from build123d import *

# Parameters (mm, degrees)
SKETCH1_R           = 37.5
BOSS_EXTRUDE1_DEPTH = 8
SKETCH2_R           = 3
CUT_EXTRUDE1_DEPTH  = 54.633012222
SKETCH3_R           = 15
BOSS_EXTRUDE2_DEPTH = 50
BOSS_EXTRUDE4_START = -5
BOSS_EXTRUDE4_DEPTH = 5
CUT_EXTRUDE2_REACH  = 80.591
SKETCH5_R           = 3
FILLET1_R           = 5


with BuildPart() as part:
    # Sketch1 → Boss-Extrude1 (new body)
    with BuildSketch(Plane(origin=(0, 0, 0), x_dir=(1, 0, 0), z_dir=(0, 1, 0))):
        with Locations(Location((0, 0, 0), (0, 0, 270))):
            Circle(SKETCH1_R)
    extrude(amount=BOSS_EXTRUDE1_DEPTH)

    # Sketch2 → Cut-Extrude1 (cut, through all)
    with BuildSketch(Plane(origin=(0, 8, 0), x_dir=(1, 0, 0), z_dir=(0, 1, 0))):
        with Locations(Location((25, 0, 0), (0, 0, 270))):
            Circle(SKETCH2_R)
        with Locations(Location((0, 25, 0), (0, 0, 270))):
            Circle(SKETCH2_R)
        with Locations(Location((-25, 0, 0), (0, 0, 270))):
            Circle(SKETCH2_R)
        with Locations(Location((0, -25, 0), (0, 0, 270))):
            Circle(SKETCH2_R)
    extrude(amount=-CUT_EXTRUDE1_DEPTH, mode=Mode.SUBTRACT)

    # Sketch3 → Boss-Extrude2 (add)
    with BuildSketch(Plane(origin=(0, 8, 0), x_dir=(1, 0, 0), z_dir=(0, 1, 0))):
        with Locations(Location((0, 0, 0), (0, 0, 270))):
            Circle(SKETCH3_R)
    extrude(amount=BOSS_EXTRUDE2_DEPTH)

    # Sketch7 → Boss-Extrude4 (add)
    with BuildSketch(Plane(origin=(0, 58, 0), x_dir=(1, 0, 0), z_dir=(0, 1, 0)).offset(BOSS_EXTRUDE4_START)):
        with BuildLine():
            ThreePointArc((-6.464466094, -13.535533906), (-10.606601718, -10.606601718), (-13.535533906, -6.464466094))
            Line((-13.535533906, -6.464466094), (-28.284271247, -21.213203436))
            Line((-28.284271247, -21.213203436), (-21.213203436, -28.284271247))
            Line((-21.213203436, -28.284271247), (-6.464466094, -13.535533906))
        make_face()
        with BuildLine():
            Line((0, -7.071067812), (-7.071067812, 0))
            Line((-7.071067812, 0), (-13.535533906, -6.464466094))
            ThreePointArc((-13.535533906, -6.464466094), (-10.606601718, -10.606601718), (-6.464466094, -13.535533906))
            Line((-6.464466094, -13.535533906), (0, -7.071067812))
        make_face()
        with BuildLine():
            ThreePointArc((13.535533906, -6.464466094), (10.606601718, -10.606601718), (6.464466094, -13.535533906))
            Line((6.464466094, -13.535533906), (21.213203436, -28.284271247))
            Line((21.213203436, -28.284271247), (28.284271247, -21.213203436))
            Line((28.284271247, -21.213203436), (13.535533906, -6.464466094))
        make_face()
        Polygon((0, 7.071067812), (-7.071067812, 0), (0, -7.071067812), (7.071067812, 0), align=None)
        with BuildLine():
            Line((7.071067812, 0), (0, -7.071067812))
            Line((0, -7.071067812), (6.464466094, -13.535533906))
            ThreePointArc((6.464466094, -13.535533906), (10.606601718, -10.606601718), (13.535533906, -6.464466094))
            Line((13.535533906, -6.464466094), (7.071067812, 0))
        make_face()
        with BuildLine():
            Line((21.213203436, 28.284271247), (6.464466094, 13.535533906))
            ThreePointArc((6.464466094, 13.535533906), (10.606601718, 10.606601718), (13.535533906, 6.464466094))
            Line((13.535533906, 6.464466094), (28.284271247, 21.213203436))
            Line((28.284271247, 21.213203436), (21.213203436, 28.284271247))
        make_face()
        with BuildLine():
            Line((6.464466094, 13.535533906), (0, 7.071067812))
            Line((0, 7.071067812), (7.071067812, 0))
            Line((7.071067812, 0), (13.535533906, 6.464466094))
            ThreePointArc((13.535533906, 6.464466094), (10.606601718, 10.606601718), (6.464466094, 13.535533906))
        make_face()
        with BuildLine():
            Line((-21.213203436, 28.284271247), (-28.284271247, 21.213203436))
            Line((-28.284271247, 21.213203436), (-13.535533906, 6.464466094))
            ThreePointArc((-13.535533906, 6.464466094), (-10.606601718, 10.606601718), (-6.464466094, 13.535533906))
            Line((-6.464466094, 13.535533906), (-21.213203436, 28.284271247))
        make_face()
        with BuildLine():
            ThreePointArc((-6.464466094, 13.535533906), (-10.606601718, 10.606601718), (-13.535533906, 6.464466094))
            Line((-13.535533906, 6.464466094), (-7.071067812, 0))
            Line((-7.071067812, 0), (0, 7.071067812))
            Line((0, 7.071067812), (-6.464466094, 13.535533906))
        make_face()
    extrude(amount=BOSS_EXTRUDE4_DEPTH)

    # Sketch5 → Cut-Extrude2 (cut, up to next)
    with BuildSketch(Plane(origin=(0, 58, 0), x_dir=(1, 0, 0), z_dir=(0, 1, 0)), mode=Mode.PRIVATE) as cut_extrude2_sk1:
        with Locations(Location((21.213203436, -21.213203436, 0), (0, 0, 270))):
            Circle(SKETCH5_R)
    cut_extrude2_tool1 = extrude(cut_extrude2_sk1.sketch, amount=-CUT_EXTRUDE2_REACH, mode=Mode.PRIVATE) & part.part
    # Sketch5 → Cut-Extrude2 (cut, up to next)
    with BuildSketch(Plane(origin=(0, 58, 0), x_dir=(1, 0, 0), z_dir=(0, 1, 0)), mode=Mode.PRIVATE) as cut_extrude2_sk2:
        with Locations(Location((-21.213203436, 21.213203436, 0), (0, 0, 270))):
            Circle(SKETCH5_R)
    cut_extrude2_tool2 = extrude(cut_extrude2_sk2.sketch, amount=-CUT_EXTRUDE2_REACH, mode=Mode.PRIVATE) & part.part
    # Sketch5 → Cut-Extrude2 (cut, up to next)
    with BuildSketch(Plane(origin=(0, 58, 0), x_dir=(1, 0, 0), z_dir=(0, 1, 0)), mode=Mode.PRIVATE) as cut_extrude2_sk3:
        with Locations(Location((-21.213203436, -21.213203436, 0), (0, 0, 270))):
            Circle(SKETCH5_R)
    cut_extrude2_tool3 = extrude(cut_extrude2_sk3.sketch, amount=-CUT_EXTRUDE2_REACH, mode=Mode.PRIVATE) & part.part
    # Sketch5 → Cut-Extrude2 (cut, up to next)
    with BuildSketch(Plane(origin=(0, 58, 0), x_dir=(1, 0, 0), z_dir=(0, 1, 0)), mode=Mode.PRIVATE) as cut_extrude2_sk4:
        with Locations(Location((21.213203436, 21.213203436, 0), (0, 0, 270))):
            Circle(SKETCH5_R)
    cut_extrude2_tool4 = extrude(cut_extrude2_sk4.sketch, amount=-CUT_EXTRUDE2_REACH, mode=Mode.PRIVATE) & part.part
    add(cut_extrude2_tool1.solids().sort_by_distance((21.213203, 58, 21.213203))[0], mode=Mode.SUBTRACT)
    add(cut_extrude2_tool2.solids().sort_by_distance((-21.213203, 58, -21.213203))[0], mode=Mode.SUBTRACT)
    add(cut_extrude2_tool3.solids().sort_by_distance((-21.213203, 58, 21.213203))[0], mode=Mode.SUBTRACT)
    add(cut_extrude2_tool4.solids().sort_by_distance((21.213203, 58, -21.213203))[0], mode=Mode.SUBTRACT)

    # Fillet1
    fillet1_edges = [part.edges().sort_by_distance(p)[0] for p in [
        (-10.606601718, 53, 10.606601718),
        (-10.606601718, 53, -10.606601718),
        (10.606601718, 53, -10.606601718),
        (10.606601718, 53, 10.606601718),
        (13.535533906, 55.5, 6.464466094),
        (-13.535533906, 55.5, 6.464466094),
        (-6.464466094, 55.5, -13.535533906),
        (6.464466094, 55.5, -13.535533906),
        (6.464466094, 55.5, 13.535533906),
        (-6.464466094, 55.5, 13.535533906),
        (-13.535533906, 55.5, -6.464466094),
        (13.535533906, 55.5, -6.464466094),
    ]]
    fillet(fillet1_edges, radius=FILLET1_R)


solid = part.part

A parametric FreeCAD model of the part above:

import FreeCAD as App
import Part
import Sketcher
from FreeCAD import Vector


def edges_at(feature, points):
    """Names of the edges that pass closest to the given points."""
    edges = feature.Shape.Edges
    near = lambda p: min(range(len(edges)), key=lambda i: edges[i].distToShape(Part.Vertex(*p))[0])
    return sorted({f"Edge{near(p) + 1}" for p in points})

doc = App.newDocument("Part")
params = doc.addObject("Spreadsheet::Sheet", "Params")
for row, (alias, value) in enumerate([
    ("sketch1_diameter", "75 mm"),
    ("pad1_length", "8 mm"),
    ("sketch2_diameter", "6 mm"),
    ("sketch3_diameter", "30 mm"),
    ("pad2_length", "50 mm"),
    ("sketch4_length", "10 mm"),
    ("pad3_length", "5 mm"),
    ("sketch5_diameter", "6 mm"),
    ("sketch6_diameter", "6 mm"),
    ("sketch7_diameter", "6 mm"),
    ("sketch8_diameter", "6 mm"),
    ("fillet_radius", "5 mm"),
], start=1):
    params.set(f"A{row}", alias)
    params.set(f"B{row}", "=" + value)
    params.setAlias(f"B{row}", alias)

body = doc.addObject("PartDesign::Body", "Body")

sketch1 = body.newObject("Sketcher::SketchObject", "Sketch")
sketch1.AttachmentSupport = (doc.getObject("XZ_Plane"), [""])
sketch1.MapMode = "FlatFace"
sketch1.addGeometry(Part.Circle(Vector(0, 0, 0), Vector(0, 0, 1), 38), False)
sketch1.addConstraint([
    Sketcher.Constraint("Coincident", 0, 3, -1, 1),
    Sketcher.Constraint("Diameter", 0, 75.0),
])
sketch1.setExpression("Constraints[1]", "Params.sketch1_diameter")
pad1 = body.newObject("PartDesign::Pad", "Pad")
pad1.Profile = sketch1
pad1.setExpression("Length", "Params.pad1_length")
pad1.Reversed = True

sketch2 = body.newObject("Sketcher::SketchObject", "Sketch001")
sketch2.AttachmentSupport = (doc.getObject("XZ_Plane"), [""])
sketch2.MapMode = "FlatFace"
sketch2.AttachmentOffset = App.Placement(Vector(0, 0, -8), App.Rotation())
sketch2.addGeometry([
    Part.Circle(Vector(25, 0, 0), Vector(0, 0, 1), 3),
    Part.Circle(Vector(0, -25, 0), Vector(0, 0, 1), 3),
    Part.Circle(Vector(-25, 0, 0), Vector(0, 0, 1), 3),
    Part.Circle(Vector(0, 25, 0), Vector(0, 0, 1), 3),
], False)
sketch2.addConstraint([
    Sketcher.Constraint("Equal", 0, 1),
    Sketcher.Constraint("Equal", 1, 2),
    Sketcher.Constraint("Equal", 2, 3),
    Sketcher.Constraint("Symmetric", 0, 3, 2, 3, -1, 1),
    Sketcher.Constraint("Symmetric", 1, 3, 3, 3, -1, 1),
    Sketcher.Constraint("PointOnObject", 0, 3, -1),
    Sketcher.Constraint("PointOnObject", 1, 3, -2),
    Sketcher.Constraint("Diameter", 0, 6.0),
    Sketcher.Constraint("DistanceX", -1, 1, 0, 3, 25.0),
    Sketcher.Constraint("DistanceY", 1, 3, -1, 1, 25.0),
])
sketch2.setExpression("Constraints[7]", "Params.sketch2_diameter")
pocket1 = body.newObject("PartDesign::Pocket", "Pocket")
pocket1.Profile = sketch2
pocket1.Type = "ThroughAll"
pocket1.Reversed = True

sketch3 = body.newObject("Sketcher::SketchObject", "Sketch002")
sketch3.AttachmentSupport = (doc.getObject("XZ_Plane"), [""])
sketch3.MapMode = "FlatFace"
sketch3.AttachmentOffset = App.Placement(Vector(0, 0, -8), App.Rotation())
sketch3.addGeometry(Part.Circle(Vector(0, 0, 0), Vector(0, 0, 1), 15), False)
sketch3.addConstraint([
    Sketcher.Constraint("Coincident", 0, 3, -1, 1),
    Sketcher.Constraint("Diameter", 0, 30.0),
])
sketch3.setExpression("Constraints[1]", "Params.sketch3_diameter")
pad2 = body.newObject("PartDesign::Pad", "Pad001")
pad2.Profile = sketch3
pad2.setExpression("Length", "Params.pad2_length")
pad2.Reversed = True

sketch4 = body.newObject("Sketcher::SketchObject", "Sketch003")
sketch4.AttachmentSupport = (doc.getObject("XZ_Plane"), [""])
sketch4.MapMode = "FlatFace"
sketch4.AttachmentOffset = App.Placement(Vector(0, 0, -53), App.Rotation())
sketch4.addGeometry([
    Part.LineSegment(Vector(-14, 6, 0), Vector(-28, 21, 0)),
    Part.LineSegment(Vector(-28, 21, 0), Vector(-21, 28, 0)),
    Part.LineSegment(Vector(-21, 28, 0), Vector(-6, 14, 0)),
    Part.LineSegment(Vector(-6, 14, 0), Vector(0, 7, 0)),
    Part.LineSegment(Vector(0, 7, 0), Vector(6, 14, 0)),
    Part.LineSegment(Vector(6, 14, 0), Vector(21, 28, 0)),
    Part.LineSegment(Vector(21, 28, 0), Vector(28, 21, 0)),
    Part.LineSegment(Vector(28, 21, 0), Vector(14, 6, 0)),
    Part.LineSegment(Vector(14, 6, 0), Vector(7, 0, 0)),
    Part.LineSegment(Vector(7, 0, 0), Vector(14, -6, 0)),
    Part.LineSegment(Vector(14, -6, 0), Vector(28, -21, 0)),
    Part.LineSegment(Vector(28, -21, 0), Vector(21, -28, 0)),
    Part.LineSegment(Vector(21, -28, 0), Vector(6, -14, 0)),
    Part.LineSegment(Vector(6, -14, 0), Vector(0, -7, 0)),
    Part.LineSegment(Vector(0, -7, 0), Vector(-6, -14, 0)),
    Part.LineSegment(Vector(-6, -14, 0), Vector(-21, -28, 0)),
    Part.LineSegment(Vector(-21, -28, 0), Vector(-28, -21, 0)),
    Part.LineSegment(Vector(-28, -21, 0), Vector(-14, -6, 0)),
    Part.LineSegment(Vector(-14, -6, 0), Vector(-7, 0, 0)),
    Part.LineSegment(Vector(-7, 0, 0), Vector(-14, 6, 0)),
], False)
sketch4.addConstraint([
    Sketcher.Constraint("Coincident", 0, 2, 1, 1),
    Sketcher.Constraint("Coincident", 1, 2, 2, 1),
    Sketcher.Constraint("Coincident", 2, 2, 3, 1),
    Sketcher.Constraint("Coincident", 3, 2, 4, 1),
    Sketcher.Constraint("Coincident", 4, 2, 5, 1),
    Sketcher.Constraint("Coincident", 5, 2, 6, 1),
    Sketcher.Constraint("Coincident", 6, 2, 7, 1),
    Sketcher.Constraint("Coincident", 7, 2, 8, 1),
    Sketcher.Constraint("Coincident", 8, 2, 9, 1),
    Sketcher.Constraint("Coincident", 9, 2, 10, 1),
    Sketcher.Constraint("Coincident", 10, 2, 11, 1),
    Sketcher.Constraint("Coincident", 11, 2, 12, 1),
    Sketcher.Constraint("Coincident", 12, 2, 13, 1),
    Sketcher.Constraint("Coincident", 13, 2, 14, 1),
    Sketcher.Constraint("Coincident", 14, 2, 15, 1),
    Sketcher.Constraint("Coincident", 15, 2, 16, 1),
    Sketcher.Constraint("Coincident", 16, 2, 17, 1),
    Sketcher.Constraint("Coincident", 17, 2, 18, 1),
    Sketcher.Constraint("Coincident", 18, 2, 19, 1),
    Sketcher.Constraint("Coincident", 19, 2, 0, 1),
    Sketcher.Constraint("Symmetric", 0, 2, 10, 2, -1, 1),
    Sketcher.Constraint("Symmetric", 1, 2, 11, 2, -1, 1),
    Sketcher.Constraint("Symmetric", 2, 2, 12, 2, -1, 1),
    Sketcher.Constraint("Symmetric", 3, 2, 13, 2, -1, 1),
    Sketcher.Constraint("Symmetric", 4, 2, 14, 2, -1, 1),
    Sketcher.Constraint("Symmetric", 5, 2, 15, 2, -1, 1),
    Sketcher.Constraint("Symmetric", 6, 2, 16, 2, -1, 1),
    Sketcher.Constraint("Symmetric", 7, 2, 17, 2, -1, 1),
    Sketcher.Constraint("Symmetric", 8, 2, 18, 2, -1, 1),
    Sketcher.Constraint("Symmetric", 9, 2, 19, 2, -1, 1),
    Sketcher.Constraint("Symmetric", 2, 2, 4, 2, -2),
    Sketcher.Constraint("Symmetric", 1, 2, 5, 2, -2),
    Sketcher.Constraint("Symmetric", 0, 2, 6, 2, -2),
    Sketcher.Constraint("Symmetric", 9, 2, 17, 2, -2),
    Sketcher.Constraint("PointOnObject", 3, 2, -2),
    Sketcher.Constraint("PointOnObject", 8, 2, -1),
    Sketcher.Constraint("Perpendicular", 0, 1),
    Sketcher.Constraint("Perpendicular", 1, 2),
    Sketcher.Constraint("Parallel", 2, 3),
    Sketcher.Constraint("Perpendicular", 3, 4),
    Sketcher.Constraint("Parallel", 7, 8),
    Sketcher.Constraint("Equal", 0, 2),
    Sketcher.Constraint("Equal", 4, 8),
    Sketcher.Constraint("Distance", 1, 10.0),
    Sketcher.Constraint("DistanceX", 2, 2, 7, 2, 20.0),
    Sketcher.Constraint("DistanceX", 0, 2, -1, 1, 28.284271),
])
sketch4.setExpression("Constraints[43]", "Params.sketch4_length")
pad3 = body.newObject("PartDesign::Pad", "Pad002")
pad3.Profile = sketch4
pad3.setExpression("Length", "Params.pad3_length")
pad3.Reversed = True

sketch5 = body.newObject("Sketcher::SketchObject", "Sketch004")
sketch5.AttachmentSupport = (doc.getObject("XZ_Plane"), [""])
sketch5.MapMode = "FlatFace"
sketch5.AttachmentOffset = App.Placement(Vector(0, 0, -58), App.Rotation())
sketch5.addGeometry(Part.Circle(Vector(21.2, 21.2, 0), Vector(0, 0, 1), 3), False)
sketch5.addConstraint([
    Sketcher.Constraint("Diameter", 0, 6.0),
    Sketcher.Constraint("DistanceX", -1, 1, 0, 3, 21.213203),
    Sketcher.Constraint("DistanceY", -1, 1, 0, 3, 21.213203),
])
sketch5.setExpression("Constraints[0]", "Params.sketch5_diameter")
pocket2 = body.newObject("PartDesign::Pocket", "Pocket001")
pocket2.Profile = sketch5
pocket2.Type = "UpToFirst"
pocket2.Reversed = True

sketch6 = body.newObject("Sketcher::SketchObject", "Sketch005")
sketch6.AttachmentSupport = (doc.getObject("XZ_Plane"), [""])
sketch6.MapMode = "FlatFace"
sketch6.AttachmentOffset = App.Placement(Vector(0, 0, -58), App.Rotation())
sketch6.addGeometry(Part.Circle(Vector(-21.2, -21.2, 0), Vector(0, 0, 1), 3), False)
sketch6.addConstraint([
    Sketcher.Constraint("Diameter", 0, 6.0),
    Sketcher.Constraint("DistanceX", 0, 3, -1, 1, 21.213203),
    Sketcher.Constraint("DistanceY", 0, 3, -1, 1, 21.213203),
])
sketch6.setExpression("Constraints[0]", "Params.sketch6_diameter")
pocket3 = body.newObject("PartDesign::Pocket", "Pocket002")
pocket3.Profile = sketch6
pocket3.Type = "UpToFirst"
pocket3.Reversed = True

sketch7 = body.newObject("Sketcher::SketchObject", "Sketch006")
sketch7.AttachmentSupport = (doc.getObject("XZ_Plane"), [""])
sketch7.MapMode = "FlatFace"
sketch7.AttachmentOffset = App.Placement(Vector(0, 0, -58), App.Rotation())
sketch7.addGeometry(Part.Circle(Vector(-21.2, 21.2, 0), Vector(0, 0, 1), 3), False)
sketch7.addConstraint([
    Sketcher.Constraint("Diameter", 0, 6.0),
    Sketcher.Constraint("DistanceX", 0, 3, -1, 1, 21.213203),
    Sketcher.Constraint("DistanceY", -1, 1, 0, 3, 21.213203),
])
sketch7.setExpression("Constraints[0]", "Params.sketch7_diameter")
pocket4 = body.newObject("PartDesign::Pocket", "Pocket003")
pocket4.Profile = sketch7
pocket4.Type = "UpToFirst"
pocket4.Reversed = True

sketch8 = body.newObject("Sketcher::SketchObject", "Sketch007")
sketch8.AttachmentSupport = (doc.getObject("XZ_Plane"), [""])
sketch8.MapMode = "FlatFace"
sketch8.AttachmentOffset = App.Placement(Vector(0, 0, -58), App.Rotation())
sketch8.addGeometry(Part.Circle(Vector(21.2, -21.2, 0), Vector(0, 0, 1), 3), False)
sketch8.addConstraint([
    Sketcher.Constraint("Diameter", 0, 6.0),
    Sketcher.Constraint("DistanceX", -1, 1, 0, 3, 21.213203),
    Sketcher.Constraint("DistanceY", 0, 3, -1, 1, 21.213203),
])
sketch8.setExpression("Constraints[0]", "Params.sketch8_diameter")
pocket5 = body.newObject("PartDesign::Pocket", "Pocket004")
pocket5.Profile = sketch8
pocket5.Type = "UpToFirst"
pocket5.Reversed = True
doc.recompute()

fillet = body.newObject("PartDesign::Fillet", "Fillet")
fillet.Base = (pocket5, edges_at(pocket5, [
    (-10.607, 53, 10.607),
    (-10.607, 53, -10.607),
    (10.607, 53, -10.607),
    (10.607, 53, 10.607),
    (13.536, 55.5, 6.464),
    (-13.536, 55.5, 6.464),
    (-6.464, 55.5, -13.536),
    (6.464, 55.5, -13.536),
    (6.464, 55.5, 13.536),
    (-6.464, 55.5, 13.536),
    (-13.536, 55.5, -6.464),
    (13.536, 55.5, -6.464),
]))
fillet.setExpression("Radius", "Params.fillet_radius")

doc.recompute()
